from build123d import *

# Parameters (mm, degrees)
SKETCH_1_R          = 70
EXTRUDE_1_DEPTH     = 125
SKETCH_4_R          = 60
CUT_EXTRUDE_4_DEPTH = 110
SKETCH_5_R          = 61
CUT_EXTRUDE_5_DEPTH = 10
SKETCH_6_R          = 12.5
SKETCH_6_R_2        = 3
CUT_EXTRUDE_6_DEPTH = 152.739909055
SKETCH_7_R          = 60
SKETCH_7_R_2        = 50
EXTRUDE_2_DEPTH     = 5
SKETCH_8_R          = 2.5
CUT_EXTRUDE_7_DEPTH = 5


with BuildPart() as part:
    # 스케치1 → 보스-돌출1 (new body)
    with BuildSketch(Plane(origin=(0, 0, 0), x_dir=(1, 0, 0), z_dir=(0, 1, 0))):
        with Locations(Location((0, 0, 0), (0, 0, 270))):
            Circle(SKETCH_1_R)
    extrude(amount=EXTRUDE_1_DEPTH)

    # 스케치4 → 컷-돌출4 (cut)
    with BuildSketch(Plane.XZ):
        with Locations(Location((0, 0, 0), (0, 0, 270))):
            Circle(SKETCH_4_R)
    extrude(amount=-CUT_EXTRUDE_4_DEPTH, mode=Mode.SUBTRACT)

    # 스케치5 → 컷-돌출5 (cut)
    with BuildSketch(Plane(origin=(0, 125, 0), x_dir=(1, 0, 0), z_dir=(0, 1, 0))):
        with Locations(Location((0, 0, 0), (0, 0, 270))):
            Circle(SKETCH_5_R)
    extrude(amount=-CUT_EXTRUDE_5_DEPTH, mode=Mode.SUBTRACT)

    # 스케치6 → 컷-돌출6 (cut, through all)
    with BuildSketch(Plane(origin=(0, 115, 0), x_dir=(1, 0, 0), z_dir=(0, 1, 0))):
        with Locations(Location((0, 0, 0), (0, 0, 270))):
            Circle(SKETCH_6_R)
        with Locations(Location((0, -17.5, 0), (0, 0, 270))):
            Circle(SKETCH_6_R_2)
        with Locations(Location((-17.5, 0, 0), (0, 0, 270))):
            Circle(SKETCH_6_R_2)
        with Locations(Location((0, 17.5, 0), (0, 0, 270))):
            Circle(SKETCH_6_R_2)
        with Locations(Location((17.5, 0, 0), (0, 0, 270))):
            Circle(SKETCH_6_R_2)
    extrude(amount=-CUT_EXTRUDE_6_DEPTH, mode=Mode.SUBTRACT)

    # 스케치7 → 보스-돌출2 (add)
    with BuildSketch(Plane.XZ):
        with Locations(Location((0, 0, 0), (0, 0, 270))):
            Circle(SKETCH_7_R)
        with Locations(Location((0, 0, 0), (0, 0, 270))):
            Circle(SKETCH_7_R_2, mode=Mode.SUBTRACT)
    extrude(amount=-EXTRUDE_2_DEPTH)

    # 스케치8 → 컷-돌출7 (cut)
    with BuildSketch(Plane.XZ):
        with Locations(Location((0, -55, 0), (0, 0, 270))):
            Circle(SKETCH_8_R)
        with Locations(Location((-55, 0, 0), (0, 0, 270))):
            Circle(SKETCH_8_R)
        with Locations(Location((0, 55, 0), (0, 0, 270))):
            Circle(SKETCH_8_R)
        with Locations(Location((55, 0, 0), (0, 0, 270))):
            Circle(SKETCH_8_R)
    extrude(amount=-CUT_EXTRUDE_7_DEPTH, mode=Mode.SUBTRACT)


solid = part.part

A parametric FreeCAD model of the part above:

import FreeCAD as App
import Part
import Sketcher

V = App.Vector
Q = App.Units.Quantity

doc = App.newDocument("Part")
body = doc.addObject("PartDesign::Body", "Body")

# Sketch on XZ plane
sketch1 = body.newObject("Sketcher::SketchObject", "Sketch")
sketch1.AttachmentSupport = (doc.getObject("XZ_Plane"), [""])
sketch1.MapMode = "FlatFace"
sketch1.addGeometry(Part.Circle(V(0, 0, 0), V(0, 0, 1), 70), False)
sketch1.addConstraint([
    Sketcher.Constraint("Coincident", 0, 3, -1, 1),
    Sketcher.Constraint("Diameter", 0, Q("140 mm")),
])
pad1 = body.newObject("PartDesign::Pad", "Pad")
pad1.Profile = sketch1
pad1.Length = 125
pad1.Reversed = True

# Sketch on XZ plane
sketch2 = body.newObject("Sketcher::SketchObject", "Sketch001")
sketch2.AttachmentSupport = (doc.getObject("XZ_Plane"), [""])
sketch2.MapMode = "FlatFace"
sketch2.addGeometry(Part.Circle(V(0, 0, 0), V(0, 0, 1), 60), False)
sketch2.addConstraint([
    Sketcher.Constraint("Coincident", 0, 3, -1, 1),
    Sketcher.Constraint("Diameter", 0, Q("120 mm")),
])
pocket1 = body.newObject("PartDesign::Pocket", "Pocket")
pocket1.Profile = sketch2
pocket1.Length = 110

# Sketch on XZ plane
sketch3 = body.newObject("Sketcher::SketchObject", "Sketch002")
sketch3.AttachmentSupport = (doc.getObject("XZ_Plane"), [""])
sketch3.MapMode = "FlatFace"
sketch3.AttachmentOffset = App.Placement(V(0, 0, -125), App.Rotation())
sketch3.addGeometry(Part.Circle(V(0, 0, 0), V(0, 0, 1), 61), False)
sketch3.addConstraint([
    Sketcher.Constraint("Coincident", 0, 3, -1, 1),
    Sketcher.Constraint("Diameter", 0, Q("122 mm")),
])
pocket2 = body.newObject("PartDesign::Pocket", "Pocket001")
pocket2.Profile = sketch3
pocket2.Length = 10
pocket2.Reversed = True

# Sketch on XZ plane
sketch4 = body.newObject("Sketcher::SketchObject", "Sketch003")
sketch4.AttachmentSupport = (doc.getObject("XZ_Plane"), [""])
sketch4.MapMode = "FlatFace"
sketch4.AttachmentOffset = App.Placement(V(0, 0, -115), App.Rotation())
sketch4.addGeometry([
    Part.Circle(V(0, 0, 0), V(0, 0, 1), 12.5),  # 0
    Part.Circle(V(0, 17.5, 0), V(0, 0, 1), 3),  # 1
    Part.Circle(V(-17.5, 0, 0), V(0, 0, 1), 3),  # 2
    Part.Circle(V(0, -17.5, 0), V(0, 0, 1), 3),  # 3
    Part.Circle(V(17.5, 0, 0), V(0, 0, 1), 3),  # 4
], False)
sketch4.addConstraint([
    Sketcher.Constraint("Coincident", 0, 3, -1, 1),
    Sketcher.Constraint("Equal", 1, 2),
    Sketcher.Constraint("Equal", 2, 3),
    Sketcher.Constraint("Equal", 3, 4),
    Sketcher.Constraint("Symmetric", 1, 3, 3, 3, -1, 1),
    Sketcher.Constraint("Symmetric", 2, 3, 4, 3, -1, 1),
    Sketcher.Constraint("PointOnObject", 1, 3, -2),
    Sketcher.Constraint("PointOnObject", 2, 3, -1),
    Sketcher.Constraint("Diameter", 0, Q("25 mm")),
    Sketcher.Constraint("Diameter", 1, Q("6 mm")),
    Sketcher.Constraint("DistanceY", 3, 3, 1, 3, Q("35 mm")),
    Sketcher.Constraint("DistanceX", 2, 3, 4, 3, Q("35 mm")),
])
pocket3 = body.newObject("PartDesign::Pocket", "Pocket002")
pocket3.Profile = sketch4
pocket3.Type = "ThroughAll"
pocket3.Reversed = True

# Sketch on XZ plane
sketch5 = body.newObject("Sketcher::SketchObject", "Sketch004")
sketch5.AttachmentSupport = (doc.getObject("XZ_Plane"), [""])
sketch5.MapMode = "FlatFace"
sketch5.addGeometry([
    Part.Circle(V(0, 0, 0), V(0, 0, 1), 60),
    Part.Circle(V(0, 0, 0), V(0, 0, 1), 50),
], False)
sketch5.addConstraint([
    Sketcher.Constraint("Coincident", 0, 3, -1, 1),
    Sketcher.Constraint("Coincident", 1, 3, -1, 1),
    Sketcher.Constraint("Diameter", 0, Q("120 mm")),
    Sketcher.Constraint("Diameter", 1, Q("100 mm")),
])
pad2 = body.newObject("PartDesign::Pad", "Pad001")
pad2.Profile = sketch5
pad2.Length = 5
pad2.Reversed = True

# Sketch on XZ plane
sketch6 = body.newObject("Sketcher::SketchObject", "Sketch005")
sketch6.AttachmentSupport = (doc.getObject("XZ_Plane"), [""])
sketch6.MapMode = "FlatFace"
sketch6.addGeometry([
    Part.Circle(V(0, -55, 0), V(0, 0, 1), 2.5),
    Part.Circle(V(-55, 0, 0), V(0, 0, 1), 2.5),
    Part.Circle(V(0, 55, 0), V(0, 0, 1), 2.5),
    Part.Circle(V(55, 0, 0), V(0, 0, 1), 2.5),
], False)
sketch6.addConstraint([
    Sketcher.Constraint("Equal", 0, 1),
    Sketcher.Constraint("Equal", 1, 2),
    Sketcher.Constraint("Equal", 2, 3),
    Sketcher.Constraint("Symmetric", 0, 3, 2, 3, -1, 1),
    Sketcher.Constraint("Symmetric", 1, 3, 3, 3, -1, 1),
    Sketcher.Constraint("PointOnObject", 0, 3, -2),
    Sketcher.Constraint("PointOnObject", 1, 3, -1),
    Sketcher.Constraint("Diameter", 0, Q("5 mm")),
    Sketcher.Constraint("DistanceY", 0, 3, -1, 1, Q("55 mm")),
    Sketcher.Constraint("DistanceX", 1, 3, -1, 1, Q("55 mm")),
])
pocket4 = body.newObject("PartDesign::Pocket", "Pocket003")
pocket4.Profile = sketch6
pocket4.Length = 5

doc.recompute()
